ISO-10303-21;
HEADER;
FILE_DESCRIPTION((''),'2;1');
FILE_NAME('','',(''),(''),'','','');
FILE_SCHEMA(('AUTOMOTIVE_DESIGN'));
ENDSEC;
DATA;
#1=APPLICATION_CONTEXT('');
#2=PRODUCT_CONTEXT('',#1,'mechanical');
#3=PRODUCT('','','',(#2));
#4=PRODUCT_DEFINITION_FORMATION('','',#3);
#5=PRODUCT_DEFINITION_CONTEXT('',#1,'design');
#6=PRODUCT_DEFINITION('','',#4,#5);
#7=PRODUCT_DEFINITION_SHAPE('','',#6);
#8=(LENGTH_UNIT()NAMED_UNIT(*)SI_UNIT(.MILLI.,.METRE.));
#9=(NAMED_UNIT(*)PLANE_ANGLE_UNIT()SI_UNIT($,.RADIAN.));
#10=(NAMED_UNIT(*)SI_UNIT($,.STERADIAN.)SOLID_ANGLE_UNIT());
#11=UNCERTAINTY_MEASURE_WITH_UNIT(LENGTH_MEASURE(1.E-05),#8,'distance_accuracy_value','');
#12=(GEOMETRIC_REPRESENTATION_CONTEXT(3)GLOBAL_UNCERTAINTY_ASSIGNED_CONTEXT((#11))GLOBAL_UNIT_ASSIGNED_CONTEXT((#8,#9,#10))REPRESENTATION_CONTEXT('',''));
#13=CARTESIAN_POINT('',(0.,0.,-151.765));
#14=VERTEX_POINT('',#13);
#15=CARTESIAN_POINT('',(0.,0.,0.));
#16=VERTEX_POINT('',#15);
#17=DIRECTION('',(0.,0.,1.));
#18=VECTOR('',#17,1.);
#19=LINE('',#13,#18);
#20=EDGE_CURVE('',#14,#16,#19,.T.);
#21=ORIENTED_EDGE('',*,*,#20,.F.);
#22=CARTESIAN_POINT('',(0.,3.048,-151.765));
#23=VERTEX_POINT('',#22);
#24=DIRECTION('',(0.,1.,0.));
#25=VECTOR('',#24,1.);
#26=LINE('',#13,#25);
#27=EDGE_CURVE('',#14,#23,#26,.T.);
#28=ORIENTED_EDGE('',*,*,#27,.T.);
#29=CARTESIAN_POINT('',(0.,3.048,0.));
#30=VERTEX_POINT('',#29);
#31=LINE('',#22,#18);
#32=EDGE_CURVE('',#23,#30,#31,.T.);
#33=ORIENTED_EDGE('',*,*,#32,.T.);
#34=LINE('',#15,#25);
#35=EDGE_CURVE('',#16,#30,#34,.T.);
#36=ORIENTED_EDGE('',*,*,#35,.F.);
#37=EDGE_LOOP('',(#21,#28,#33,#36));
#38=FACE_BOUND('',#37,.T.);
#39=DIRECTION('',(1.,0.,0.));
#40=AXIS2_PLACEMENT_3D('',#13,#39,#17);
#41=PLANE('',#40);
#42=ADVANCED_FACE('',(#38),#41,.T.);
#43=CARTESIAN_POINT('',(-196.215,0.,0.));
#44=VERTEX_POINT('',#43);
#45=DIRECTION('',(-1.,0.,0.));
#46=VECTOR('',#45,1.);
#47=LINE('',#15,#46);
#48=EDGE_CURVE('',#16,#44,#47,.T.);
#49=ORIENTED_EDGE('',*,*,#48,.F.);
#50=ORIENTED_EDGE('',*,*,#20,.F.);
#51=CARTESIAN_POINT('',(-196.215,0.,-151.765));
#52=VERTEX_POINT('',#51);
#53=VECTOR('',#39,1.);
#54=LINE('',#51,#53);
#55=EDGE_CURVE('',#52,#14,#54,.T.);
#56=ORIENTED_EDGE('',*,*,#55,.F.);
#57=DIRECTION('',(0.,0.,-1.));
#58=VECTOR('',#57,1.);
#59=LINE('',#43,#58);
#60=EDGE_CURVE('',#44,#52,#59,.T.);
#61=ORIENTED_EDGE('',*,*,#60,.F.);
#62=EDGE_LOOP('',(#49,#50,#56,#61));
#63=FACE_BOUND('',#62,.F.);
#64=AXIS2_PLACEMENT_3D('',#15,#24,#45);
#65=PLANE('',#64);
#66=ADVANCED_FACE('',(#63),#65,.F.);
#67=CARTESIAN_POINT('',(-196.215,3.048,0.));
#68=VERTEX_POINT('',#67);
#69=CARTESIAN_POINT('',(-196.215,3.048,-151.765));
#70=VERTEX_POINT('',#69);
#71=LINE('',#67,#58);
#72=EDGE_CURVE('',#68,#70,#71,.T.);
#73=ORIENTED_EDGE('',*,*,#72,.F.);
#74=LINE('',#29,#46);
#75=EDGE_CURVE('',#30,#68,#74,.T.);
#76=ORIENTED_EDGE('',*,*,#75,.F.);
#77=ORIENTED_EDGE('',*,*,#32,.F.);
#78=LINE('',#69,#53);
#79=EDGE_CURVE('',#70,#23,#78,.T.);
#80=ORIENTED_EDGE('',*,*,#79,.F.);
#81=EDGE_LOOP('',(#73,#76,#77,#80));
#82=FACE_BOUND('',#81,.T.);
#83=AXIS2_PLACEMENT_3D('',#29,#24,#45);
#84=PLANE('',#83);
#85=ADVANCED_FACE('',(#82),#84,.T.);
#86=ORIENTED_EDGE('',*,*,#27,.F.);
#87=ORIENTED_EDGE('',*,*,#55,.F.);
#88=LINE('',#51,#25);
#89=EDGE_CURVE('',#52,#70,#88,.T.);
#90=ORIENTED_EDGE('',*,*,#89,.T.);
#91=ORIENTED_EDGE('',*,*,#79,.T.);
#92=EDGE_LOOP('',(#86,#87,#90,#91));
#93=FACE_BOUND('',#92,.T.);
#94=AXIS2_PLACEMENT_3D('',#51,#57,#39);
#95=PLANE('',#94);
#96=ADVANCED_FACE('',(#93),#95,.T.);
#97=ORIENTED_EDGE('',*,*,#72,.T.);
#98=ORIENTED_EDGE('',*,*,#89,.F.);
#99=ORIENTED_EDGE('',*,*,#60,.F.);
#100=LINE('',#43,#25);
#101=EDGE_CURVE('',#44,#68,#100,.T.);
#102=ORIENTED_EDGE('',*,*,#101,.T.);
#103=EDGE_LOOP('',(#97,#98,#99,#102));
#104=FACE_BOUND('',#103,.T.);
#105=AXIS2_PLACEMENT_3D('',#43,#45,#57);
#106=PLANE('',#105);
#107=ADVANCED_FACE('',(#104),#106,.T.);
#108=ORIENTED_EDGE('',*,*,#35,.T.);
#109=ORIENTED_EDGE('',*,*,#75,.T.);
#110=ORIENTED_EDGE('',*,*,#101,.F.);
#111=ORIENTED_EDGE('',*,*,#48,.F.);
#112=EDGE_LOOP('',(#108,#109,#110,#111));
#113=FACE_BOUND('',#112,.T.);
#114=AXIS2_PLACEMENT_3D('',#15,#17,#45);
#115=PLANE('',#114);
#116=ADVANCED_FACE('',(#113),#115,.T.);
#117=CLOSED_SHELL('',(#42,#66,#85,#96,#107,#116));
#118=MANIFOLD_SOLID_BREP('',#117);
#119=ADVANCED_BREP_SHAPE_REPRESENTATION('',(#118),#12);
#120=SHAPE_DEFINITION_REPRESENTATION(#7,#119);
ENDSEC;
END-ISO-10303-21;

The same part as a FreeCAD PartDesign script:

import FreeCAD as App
import Part
import Sketcher
Q = App.Units.Quantity


def add_polygon(sketch, points):
    """Adds a closed chain of lines whose ends are joined by coincident constraints."""
    first, n = sketch.GeometryCount, len(points)
    for a, b in zip(points, points[1:] + points[:1]):
        sketch.addGeometry(Part.LineSegment(App.Vector(*a, 0), App.Vector(*b, 0)), False)
    for i in range(n):
        sketch.addConstraint(Sketcher.Constraint("Coincident", first + i, 2, first + (i + 1) % n, 1))

doc = App.newDocument("Part")
body = doc.addObject("PartDesign::Body", "Body")

# Sketch on XZ plane
sketch1 = body.newObject("Sketcher::SketchObject", "Sketch")
sketch1.AttachmentSupport = (doc.getObject("XZ_Plane"), [""])
sketch1.MapMode = "FlatFace"
add_polygon(sketch1, [(-196, 0), (0, 0), (0, -152), (-196, -152)])  # lines 0-3
sketch1.addConstraint(Sketcher.Constraint("Horizontal", 0))
sketch1.addConstraint(Sketcher.Constraint("Vertical", 1))
sketch1.addConstraint(Sketcher.Constraint("Horizontal", 2))
sketch1.addConstraint(Sketcher.Constraint("Vertical", 3))
sketch1.addConstraint(Sketcher.Constraint("Coincident", 0, 2, -1, 1))
sketch1.addConstraint(Sketcher.Constraint("DistanceX", 0, 1, 0, 2, Q("7.725 in")))
sketch1.addConstraint(Sketcher.Constraint("DistanceY", 1, 2, 1, 1, Q("5.975 in")))
pad1 = body.newObject("PartDesign::Pad", "Pad")
pad1.Profile = sketch1
pad1.Length = Q("0.12 in")
pad1.Reversed = True

doc.recompute()
